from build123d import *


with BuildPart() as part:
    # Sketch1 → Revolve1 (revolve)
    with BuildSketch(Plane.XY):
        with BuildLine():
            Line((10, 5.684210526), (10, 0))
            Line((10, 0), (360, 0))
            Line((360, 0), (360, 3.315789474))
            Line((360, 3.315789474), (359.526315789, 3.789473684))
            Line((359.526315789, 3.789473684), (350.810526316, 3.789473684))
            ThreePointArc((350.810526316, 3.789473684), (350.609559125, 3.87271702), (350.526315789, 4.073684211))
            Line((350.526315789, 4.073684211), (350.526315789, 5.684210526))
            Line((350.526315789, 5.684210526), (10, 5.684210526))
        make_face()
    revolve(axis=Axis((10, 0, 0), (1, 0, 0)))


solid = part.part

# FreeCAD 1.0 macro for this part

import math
import FreeCAD as App
import Part
import Sketcher
from FreeCAD import Vector
Q = App.Units.Quantity

doc = App.newDocument("Part")
params = doc.addObject("Spreadsheet::Sheet", "Params")
for row, (alias, value) in enumerate([
    ("sketch1_width", "350 mm"),
    ("revolution_angle", "360 deg"),
], start=1):
    params.set(f"A{row}", alias)
    params.set(f"B{row}", "=" + value)
    params.setAlias(f"B{row}", alias)

body = doc.addObject("PartDesign::Body", "Body")

# Sketch on XY plane
sketch1 = body.newObject("Sketcher::SketchObject", "Sketch")
sketch1.AttachmentSupport = (doc.getObject("XY_Plane"), [""])
sketch1.MapMode = "FlatFace"
sketch1.addGeometry([
    Part.LineSegment(Vector(10, 5.68, 0), Vector(10, 0, 0)),  # 0
    Part.LineSegment(Vector(10, 0, 0), Vector(360, 0, 0)),  # 1
    Part.LineSegment(Vector(360, 0, 0), Vector(360, 3.32, 0)),  # 2
    Part.LineSegment(Vector(360, 3.32, 0), Vector(359.53, 3.79, 0)),  # 3
    Part.LineSegment(Vector(359.53, 3.79, 0), Vector(350.81, 3.79, 0)),  # 4
    Part.ArcOfCircle(Part.Circle(Vector(350.81, 4.07, 0), Vector(0, 0, 1), 0.28), math.radians(180), math.radians(270)),  # 5
    Part.LineSegment(Vector(350.53, 4.07, 0), Vector(350.53, 5.68, 0)),  # 6
    Part.LineSegment(Vector(350.53, 5.68, 0), Vector(10, 5.68, 0)),  # 7
], False)
sketch1.addConstraint([
    Sketcher.Constraint("Coincident", 0, 2, 1, 1),
    Sketcher.Constraint("Coincident", 1, 2, 2, 1),
    Sketcher.Constraint("Coincident", 2, 2, 3, 1),
    Sketcher.Constraint("Coincident", 3, 2, 4, 1),
    Sketcher.Constraint("Tangent", 4, 2, 5, 2),
    Sketcher.Constraint("Tangent", 5, 1, 6, 1),
    Sketcher.Constraint("Coincident", 6, 2, 7, 1),
    Sketcher.Constraint("Coincident", 7, 2, 0, 1),
    Sketcher.Constraint("Vertical", 0),
    Sketcher.Constraint("Horizontal", 1),
    Sketcher.Constraint("Vertical", 2),
    Sketcher.Constraint("Horizontal", 4),
    Sketcher.Constraint("Vertical", 6),
    Sketcher.Constraint("Horizontal", 7),
    Sketcher.Constraint("PointOnObject", 0, 2, -1),
    Sketcher.Constraint("DistanceX", 1, 1, 1, 2, 350.0),
    Sketcher.Constraint("Angle", 3, Q("135 deg")),
    Sketcher.Constraint("DistanceX", -1, 1, 0, 2, 10.0),
    Sketcher.Constraint("DistanceX", 5, 1, 3, 2, 9.0),
    Sketcher.Constraint("Radius", 5, 0.284211),
    Sketcher.Constraint("DistanceY", 0, 2, 0, 1, 5.684211),
    Sketcher.Constraint("DistanceY", 2, 1, 2, 2, 3.315789),
    Sketcher.Constraint("Distance", 3, 0.669891),
])
sketch1.setExpression("Constraints[15]", "Params.sketch1_width")
revolution = body.newObject("PartDesign::Revolution", "Revolution")
revolution.Profile = sketch1
revolution.ReferenceAxis = (sketch1, ["H_Axis"])
revolution.setExpression("Angle", "Params.revolution_angle")

doc.recompute()
